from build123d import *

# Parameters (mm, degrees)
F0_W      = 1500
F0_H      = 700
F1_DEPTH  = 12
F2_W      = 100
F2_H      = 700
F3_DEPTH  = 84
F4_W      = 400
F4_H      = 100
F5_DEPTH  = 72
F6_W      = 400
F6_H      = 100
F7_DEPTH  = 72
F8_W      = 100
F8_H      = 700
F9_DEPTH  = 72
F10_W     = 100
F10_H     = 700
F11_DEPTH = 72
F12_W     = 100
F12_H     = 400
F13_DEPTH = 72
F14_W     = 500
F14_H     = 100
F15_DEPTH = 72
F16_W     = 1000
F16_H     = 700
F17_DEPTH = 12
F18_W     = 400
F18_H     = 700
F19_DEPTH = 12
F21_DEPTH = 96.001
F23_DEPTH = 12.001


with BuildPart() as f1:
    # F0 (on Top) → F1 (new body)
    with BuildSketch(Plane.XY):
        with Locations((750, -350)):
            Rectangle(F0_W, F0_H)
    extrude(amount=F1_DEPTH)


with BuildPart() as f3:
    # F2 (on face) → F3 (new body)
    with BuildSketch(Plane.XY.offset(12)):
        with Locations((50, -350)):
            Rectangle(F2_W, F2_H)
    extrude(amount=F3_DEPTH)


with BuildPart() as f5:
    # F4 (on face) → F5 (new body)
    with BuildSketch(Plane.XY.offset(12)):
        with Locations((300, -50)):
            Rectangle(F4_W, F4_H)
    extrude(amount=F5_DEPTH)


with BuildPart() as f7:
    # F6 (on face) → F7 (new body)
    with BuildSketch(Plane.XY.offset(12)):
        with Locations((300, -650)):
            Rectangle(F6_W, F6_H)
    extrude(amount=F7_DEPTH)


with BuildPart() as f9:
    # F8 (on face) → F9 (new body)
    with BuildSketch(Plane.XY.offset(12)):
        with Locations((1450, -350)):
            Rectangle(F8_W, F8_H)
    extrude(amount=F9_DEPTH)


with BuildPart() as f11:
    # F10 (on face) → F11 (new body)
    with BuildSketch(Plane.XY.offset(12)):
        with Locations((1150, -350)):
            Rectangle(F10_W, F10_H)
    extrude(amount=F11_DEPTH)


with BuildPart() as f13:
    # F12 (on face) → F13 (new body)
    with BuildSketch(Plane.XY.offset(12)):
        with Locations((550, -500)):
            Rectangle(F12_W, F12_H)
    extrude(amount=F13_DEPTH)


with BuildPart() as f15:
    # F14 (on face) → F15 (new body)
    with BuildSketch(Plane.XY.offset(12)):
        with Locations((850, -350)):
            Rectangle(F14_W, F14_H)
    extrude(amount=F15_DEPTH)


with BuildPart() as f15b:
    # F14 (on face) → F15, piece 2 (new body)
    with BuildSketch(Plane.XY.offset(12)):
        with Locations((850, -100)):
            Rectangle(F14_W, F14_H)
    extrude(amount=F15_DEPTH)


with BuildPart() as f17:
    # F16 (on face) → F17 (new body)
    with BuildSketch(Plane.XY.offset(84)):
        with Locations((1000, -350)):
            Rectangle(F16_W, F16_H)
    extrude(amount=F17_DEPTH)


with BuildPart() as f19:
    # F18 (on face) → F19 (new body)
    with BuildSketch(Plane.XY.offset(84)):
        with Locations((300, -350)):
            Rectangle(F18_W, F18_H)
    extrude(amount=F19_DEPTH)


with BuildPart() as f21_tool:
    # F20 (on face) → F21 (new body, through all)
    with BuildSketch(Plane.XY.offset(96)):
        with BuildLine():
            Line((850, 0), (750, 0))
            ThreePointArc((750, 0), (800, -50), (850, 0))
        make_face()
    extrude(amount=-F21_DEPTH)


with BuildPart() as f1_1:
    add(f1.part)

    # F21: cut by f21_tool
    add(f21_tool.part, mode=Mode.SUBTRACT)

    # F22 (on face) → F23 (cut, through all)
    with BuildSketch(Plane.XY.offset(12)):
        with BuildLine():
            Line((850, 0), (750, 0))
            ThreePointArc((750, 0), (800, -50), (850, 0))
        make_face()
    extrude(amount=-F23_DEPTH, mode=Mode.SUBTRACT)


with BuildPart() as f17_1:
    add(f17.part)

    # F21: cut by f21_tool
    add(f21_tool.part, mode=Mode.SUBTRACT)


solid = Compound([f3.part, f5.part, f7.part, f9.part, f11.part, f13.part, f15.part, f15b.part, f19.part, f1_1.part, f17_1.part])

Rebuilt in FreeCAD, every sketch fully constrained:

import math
import FreeCAD as App
import Part
import Sketcher

V = App.Vector


def add_polygon(sketch, points):
    """Adds a closed chain of lines whose ends are joined by coincident constraints."""
    first, n = sketch.GeometryCount, len(points)
    for a, b in zip(points, points[1:] + points[:1]):
        sketch.addGeometry(Part.LineSegment(App.Vector(*a, 0), App.Vector(*b, 0)), False)
    for i in range(n):
        sketch.addConstraint(Sketcher.Constraint("Coincident", first + i, 2, first + (i + 1) % n, 1))

doc = App.newDocument("Part")
params = doc.addObject("Spreadsheet::Sheet", "Params")
for row, (alias, value) in enumerate([
    ("sketch1_width", "1500 mm"),
    ("sketch1_height", "700 mm"),
    ("pad1_length", "12 mm"),
    ("sketch2_width", "100 mm"),
    ("sketch2_height", "700 mm"),
    ("pad2_length", "84 mm"),
    ("sketch3_width", "400 mm"),
    ("sketch3_height", "100 mm"),
    ("pad3_length", "72 mm"),
    ("sketch4_width", "400 mm"),
    ("sketch4_height", "100 mm"),
    ("pad4_length", "72 mm"),
    ("sketch5_width", "100 mm"),
    ("sketch5_height", "700 mm"),
    ("pad5_length", "72 mm"),
    ("sketch6_width", "100 mm"),
    ("sketch6_height", "700 mm"),
    ("pad6_length", "72 mm"),
    ("sketch7_width", "100 mm"),
    ("sketch7_height", "400 mm"),
    ("pad7_length", "72 mm"),
    ("sketch8_width", "500 mm"),
    ("sketch8_height", "100 mm"),
    ("pad8_length", "72 mm"),
    ("sketch9_width", "500 mm"),
    ("sketch9_height", "100 mm"),
    ("pad9_length", "72 mm"),
    ("sketch10_width", "1000 mm"),
    ("sketch10_height", "700 mm"),
    ("pad10_length", "12 mm"),
    ("sketch11_width", "400 mm"),
    ("sketch11_height", "700 mm"),
    ("pad11_length", "12 mm"),
    ("sketch12_radius", "50 mm"),
    ("pad12_length", "96.001 mm"),
    ("sketch13_radius", "50 mm"),
], start=1):
    params.set(f"A{row}", alias)
    params.set(f"B{row}", "=" + value)
    params.setAlias(f"B{row}", alias)

body = doc.addObject("PartDesign::Body", "Body")

sketch1 = body.newObject("Sketcher::SketchObject", "Sketch")
sketch1.AttachmentSupport = (doc.getObject("XY_Plane"), [""])
sketch1.MapMode = "FlatFace"
add_polygon(sketch1, [(0, 0), (0, -700), (1500, -700), (1500, 0)])
sketch1.addConstraint([
    Sketcher.Constraint("Vertical", 0),
    Sketcher.Constraint("Horizontal", 1),
    Sketcher.Constraint("Vertical", 2),
    Sketcher.Constraint("Horizontal", 3),
    Sketcher.Constraint("Coincident", 3, 2, -1, 1),
    Sketcher.Constraint("DistanceX", 1, 1, 1, 2, 1500.0),
    Sketcher.Constraint("DistanceY", 0, 2, 0, 1, 700.0),
])
sketch1.setExpression("Constraints[9]", "Params.sketch1_width")
sketch1.setExpression("Constraints[10]", "Params.sketch1_height")
pad1 = body.newObject("PartDesign::Pad", "Pad")
pad1.Profile = sketch1
pad1.setExpression("Length", "Params.pad1_length")
body2 = doc.addObject("PartDesign::Body", "Body001")

sketch2 = body2.newObject("Sketcher::SketchObject", "Sketch001")
sketch2.AttachmentSupport = (doc.getObject("XY_Plane001"), [""])
sketch2.MapMode = "FlatFace"
sketch2.AttachmentOffset = App.Placement(V(0, 0, 12), App.Rotation())
add_polygon(sketch2, [(0, 0), (0, -700), (100, -700), (100, 0)])
sketch2.addConstraint([
    Sketcher.Constraint("Vertical", 0),
    Sketcher.Constraint("Horizontal", 1),
    Sketcher.Constraint("Vertical", 2),
    Sketcher.Constraint("Horizontal", 3),
    Sketcher.Constraint("Coincident", 3, 2, -1, 1),
    Sketcher.Constraint("DistanceX", 1, 1, 1, 2, 100.0),
    Sketcher.Constraint("DistanceY", 0, 2, 0, 1, 700.0),
])
sketch2.setExpression("Constraints[9]", "Params.sketch2_width")
sketch2.setExpression("Constraints[10]", "Params.sketch2_height")
pad2 = body2.newObject("PartDesign::Pad", "Pad001")
pad2.Profile = sketch2
pad2.setExpression("Length", "Params.pad2_length")
body3 = doc.addObject("PartDesign::Body", "Body002")

sketch3 = body3.newObject("Sketcher::SketchObject", "Sketch002")
sketch3.AttachmentSupport = (doc.getObject("XY_Plane002"), [""])
sketch3.MapMode = "FlatFace"
sketch3.AttachmentOffset = App.Placement(V(0, 0, 12), App.Rotation())
add_polygon(sketch3, [(100, 0), (100, -100), (500, -100), (500, 0)])
sketch3.addConstraint([
    Sketcher.Constraint("Vertical", 0),
    Sketcher.Constraint("Horizontal", 1),
    Sketcher.Constraint("Vertical", 2),
    Sketcher.Constraint("Horizontal", 3),
    Sketcher.Constraint("PointOnObject", 2, 2, -1),
    Sketcher.Constraint("DistanceX", 1, 1, 1, 2, 400.0),
    Sketcher.Constraint("DistanceY", 0, 2, 0, 1, 100.0),
    Sketcher.Constraint("DistanceX", -1, 1, 0, 2, 100.0),
])
sketch3.setExpression("Constraints[9]", "Params.sketch3_width")
sketch3.setExpression("Constraints[10]", "Params.sketch3_height")
pad3 = body3.newObject("PartDesign::Pad", "Pad002")
pad3.Profile = sketch3
pad3.setExpression("Length", "Params.pad3_length")
body4 = doc.addObject("PartDesign::Body", "Body003")

sketch4 = body4.newObject("Sketcher::SketchObject", "Sketch003")
sketch4.AttachmentSupport = (doc.getObject("XY_Plane003"), [""])
sketch4.MapMode = "FlatFace"
sketch4.AttachmentOffset = App.Placement(V(0, 0, 12), App.Rotation())
add_polygon(sketch4, [(100, -600), (100, -700), (500, -700), (500, -600)])
sketch4.addConstraint([
    Sketcher.Constraint("Vertical", 0),
    Sketcher.Constraint("Horizontal", 1),
    Sketcher.Constraint("Vertical", 2),
    Sketcher.Constraint("Horizontal", 3),
    Sketcher.Constraint("DistanceX", 1, 1, 1, 2, 400.0),
    Sketcher.Constraint("DistanceY", 0, 2, 0, 1, 100.0),
    Sketcher.Constraint("DistanceX", -1, 1, 0, 2, 100.0),
    Sketcher.Constraint("DistanceY", 0, 2, -1, 1, 700.0),
])
sketch4.setExpression("Constraints[8]", "Params.sketch4_width")
sketch4.setExpression("Constraints[9]", "Params.sketch4_height")
pad4 = body4.newObject("PartDesign::Pad", "Pad003")
pad4.Profile = sketch4
pad4.setExpression("Length", "Params.pad4_length")
body5 = doc.addObject("PartDesign::Body", "Body004")

sketch5 = body5.newObject("Sketcher::SketchObject", "Sketch004")
sketch5.AttachmentSupport = (doc.getObject("XY_Plane004"), [""])
sketch5.MapMode = "FlatFace"
sketch5.AttachmentOffset = App.Placement(V(0, 0, 12), App.Rotation())
add_polygon(sketch5, [(1400, 0), (1400, -700), (1500, -700), (1500, 0)])
sketch5.addConstraint([
    Sketcher.Constraint("Vertical", 0),
    Sketcher.Constraint("Horizontal", 1),
    Sketcher.Constraint("Vertical", 2),
    Sketcher.Constraint("Horizontal", 3),
    Sketcher.Constraint("PointOnObject", 2, 2, -1),
    Sketcher.Constraint("DistanceX", 1, 1, 1, 2, 100.0),
    Sketcher.Constraint("DistanceY", 0, 2, 0, 1, 700.0),
    Sketcher.Constraint("DistanceX", -1, 1, 0, 2, 1400.0),
])
sketch5.setExpression("Constraints[9]", "Params.sketch5_width")
sketch5.setExpression("Constraints[10]", "Params.sketch5_height")
pad5 = body5.newObject("PartDesign::Pad", "Pad004")
pad5.Profile = sketch5
pad5.setExpression("Length", "Params.pad5_length")
body6 = doc.addObject("PartDesign::Body", "Body005")

sketch6 = body6.newObject("Sketcher::SketchObject", "Sketch005")
sketch6.AttachmentSupport = (doc.getObject("XY_Plane005"), [""])
sketch6.MapMode = "FlatFace"
sketch6.AttachmentOffset = App.Placement(V(0, 0, 12), App.Rotation())
add_polygon(sketch6, [(1100, 0), (1100, -700), (1200, -700), (1200, 0)])
sketch6.addConstraint([
    Sketcher.Constraint("Vertical", 0),
    Sketcher.Constraint("Horizontal", 1),
    Sketcher.Constraint("Vertical", 2),
    Sketcher.Constraint("Horizontal", 3),
    Sketcher.Constraint("PointOnObject", 2, 2, -1),
    Sketcher.Constraint("DistanceX", 1, 1, 1, 2, 100.0),
    Sketcher.Constraint("DistanceY", 0, 2, 0, 1, 700.0),
    Sketcher.Constraint("DistanceX", -1, 1, 0, 2, 1100.0),
])
sketch6.setExpression("Constraints[9]", "Params.sketch6_width")
sketch6.setExpression("Constraints[10]", "Params.sketch6_height")
pad6 = body6.newObject("PartDesign::Pad", "Pad005")
pad6.Profile = sketch6
pad6.setExpression("Length", "Params.pad6_length")
body7 = doc.addObject("PartDesign::Body", "Body006")

sketch7 = body7.newObject("Sketcher::SketchObject", "Sketch006")
sketch7.AttachmentSupport = (doc.getObject("XY_Plane006"), [""])
sketch7.MapMode = "FlatFace"
sketch7.AttachmentOffset = App.Placement(V(0, 0, 12), App.Rotation())
add_polygon(sketch7, [(500, -300), (500, -700), (600, -700), (600, -300)])
sketch7.addConstraint([
    Sketcher.Constraint("Vertical", 0),
    Sketcher.Constraint("Horizontal", 1),
    Sketcher.Constraint("Vertical", 2),
    Sketcher.Constraint("Horizontal", 3),
    Sketcher.Constraint("DistanceX", 1, 1, 1, 2, 100.0),
    Sketcher.Constraint("DistanceY", 0, 2, 0, 1, 400.0),
    Sketcher.Constraint("DistanceX", -1, 1, 0, 2, 500.0),
    Sketcher.Constraint("DistanceY", 0, 2, -1, 1, 700.0),
])
sketch7.setExpression("Constraints[8]", "Params.sketch7_width")
sketch7.setExpression("Constraints[9]", "Params.sketch7_height")
pad7 = body7.newObject("PartDesign::Pad", "Pad006")
pad7.Profile = sketch7
pad7.setExpression("Length", "Params.pad7_length")
body8 = doc.addObject("PartDesign::Body", "Body007")

sketch8 = body8.newObject("Sketcher::SketchObject", "Sketch007")
sketch8.AttachmentSupport = (doc.getObject("XY_Plane007"), [""])
sketch8.MapMode = "FlatFace"
sketch8.AttachmentOffset = App.Placement(V(0, 0, 12), App.Rotation())
add_polygon(sketch8, [(600, -300), (600, -400), (1100, -400), (1100, -300)])
sketch8.addConstraint([
    Sketcher.Constraint("Vertical", 0),
    Sketcher.Constraint("Horizontal", 1),
    Sketcher.Constraint("Vertical", 2),
    Sketcher.Constraint("Horizontal", 3),
    Sketcher.Constraint("DistanceX", 1, 1, 1, 2, 500.0),
    Sketcher.Constraint("DistanceY", 0, 2, 0, 1, 100.0),
    Sketcher.Constraint("DistanceX", -1, 1, 0, 2, 600.0),
    Sketcher.Constraint("DistanceY", 0, 2, -1, 1, 400.0),
])
sketch8.setExpression("Constraints[8]", "Params.sketch8_width")
sketch8.setExpression("Constraints[9]", "Params.sketch8_height")
pad8 = body8.newObject("PartDesign::Pad", "Pad007")
pad8.Profile = sketch8
pad8.setExpression("Length", "Params.pad8_length")
body9 = doc.addObject("PartDesign::Body", "Body008")

sketch9 = body9.newObject("Sketcher::SketchObject", "Sketch008")
sketch9.AttachmentSupport = (doc.getObject("XY_Plane008"), [""])
sketch9.MapMode = "FlatFace"
sketch9.AttachmentOffset = App.Placement(V(0, 0, 12), App.Rotation())
add_polygon(sketch9, [(600, -50), (600, -150), (1100, -150), (1100, -50)])
sketch9.addConstraint([
    Sketcher.Constraint("Vertical", 0),
    Sketcher.Constraint("Horizontal", 1),
    Sketcher.Constraint("Vertical", 2),
    Sketcher.Constraint("Horizontal", 3),
    Sketcher.Constraint("DistanceX", 1, 1, 1, 2, 500.0),
    Sketcher.Constraint("DistanceY", 0, 2, 0, 1, 100.0),
    Sketcher.Constraint("DistanceX", -1, 1, 0, 2, 600.0),
    Sketcher.Constraint("DistanceY", 0, 2, -1, 1, 150.0),
])
sketch9.setExpression("Constraints[8]", "Params.sketch9_width")
sketch9.setExpression("Constraints[9]", "Params.sketch9_height")
pad9 = body9.newObject("PartDesign::Pad", "Pad008")
pad9.Profile = sketch9
pad9.setExpression("Length", "Params.pad9_length")
body10 = doc.addObject("PartDesign::Body", "Body009")

sketch10 = body10.newObject("Sketcher::SketchObject", "Sketch009")
sketch10.AttachmentSupport = (doc.getObject("XY_Plane009"), [""])
sketch10.MapMode = "FlatFace"
sketch10.AttachmentOffset = App.Placement(V(0, 0, 84), App.Rotation())
add_polygon(sketch10, [(500, 0), (500, -700), (1500, -700), (1500, 0)])
sketch10.addConstraint([
    Sketcher.Constraint("Vertical", 0),
    Sketcher.Constraint("Horizontal", 1),
    Sketcher.Constraint("Vertical", 2),
    Sketcher.Constraint("Horizontal", 3),
    Sketcher.Constraint("PointOnObject", 2, 2, -1),
    Sketcher.Constraint("DistanceX", 1, 1, 1, 2, 1000.0),
    Sketcher.Constraint("DistanceY", 0, 2, 0, 1, 700.0),
    Sketcher.Constraint("DistanceX", -1, 1, 0, 2, 500.0),
])
sketch10.setExpression("Constraints[9]", "Params.sketch10_width")
sketch10.setExpression("Constraints[10]", "Params.sketch10_height")
pad10 = body10.newObject("PartDesign::Pad", "Pad009")
pad10.Profile = sketch10
pad10.setExpression("Length", "Params.pad10_length")
body11 = doc.addObject("PartDesign::Body", "Body010")

sketch11 = body11.newObject("Sketcher::SketchObject", "Sketch010")
sketch11.AttachmentSupport = (doc.getObject("XY_Plane010"), [""])
sketch11.MapMode = "FlatFace"
sketch11.AttachmentOffset = App.Placement(V(0, 0, 84), App.Rotation())
add_polygon(sketch11, [(100, 0), (100, -700), (500, -700), (500, 0)])
sketch11.addConstraint([
    Sketcher.Constraint("Vertical", 0),
    Sketcher.Constraint("Horizontal", 1),
    Sketcher.Constraint("Vertical", 2),
    Sketcher.Constraint("Horizontal", 3),
    Sketcher.Constraint("PointOnObject", 2, 2, -1),
    Sketcher.Constraint("DistanceX", 1, 1, 1, 2, 400.0),
    Sketcher.Constraint("DistanceY", 0, 2, 0, 1, 700.0),
    Sketcher.Constraint("DistanceX", -1, 1, 0, 2, 100.0),
])
sketch11.setExpression("Constraints[9]", "Params.sketch11_width")
sketch11.setExpression("Constraints[10]", "Params.sketch11_height")
pad11 = body11.newObject("PartDesign::Pad", "Pad010")
pad11.Profile = sketch11
pad11.setExpression("Length", "Params.pad11_length")
body12 = doc.addObject("PartDesign::Body", "Body011")

sketch12 = body12.newObject("Sketcher::SketchObject", "Sketch011")
sketch12.AttachmentSupport = (doc.getObject("XY_Plane011"), [""])
sketch12.MapMode = "FlatFace"
sketch12.AttachmentOffset = App.Placement(V(0, 0, 96), App.Rotation())
sketch12.addGeometry([
    Part.LineSegment(V(850, 0, 0), V(750, 0, 0)),
    Part.ArcOfCircle(Part.Circle(V(800, 0, 0), V(0, 0, 1), 50), math.radians(180), math.radians(360)),
], False)
sketch12.addConstraint([
    Sketcher.Constraint("Coincident", 0, 1, 1, 2),
    Sketcher.Constraint("Coincident", 1, 1, 0, 2),
    Sketcher.Constraint("Horizontal", 0),
    Sketcher.Constraint("PointOnObject", 1, 3, -1),
    Sketcher.Constraint("PointOnObject", 0, 1, -1),
    Sketcher.Constraint("Radius", 1, 50.0),
    Sketcher.Constraint("DistanceX", -1, 1, 1, 3, 800.0),
])
sketch12.setExpression("Constraints[5]", "Params.sketch12_radius")
pad12 = body12.newObject("PartDesign::Pad", "Pad011")
pad12.Profile = sketch12
pad12.setExpression("Length", "Params.pad12_length")
pad12.Reversed = True
doc.recompute()

body13 = doc.addObject("PartDesign::Body", "Body012")
body13.BaseFeature = body12
boolean = body.newObject("PartDesign::Boolean", "Boolean")
boolean.Type = "Cut"
boolean.addObjects([body13])
doc.recompute()

sketch13 = body.newObject("Sketcher::SketchObject", "Sketch012")
sketch13.AttachmentSupport = (doc.getObject("XY_Plane"), [""])
sketch13.MapMode = "FlatFace"
sketch13.AttachmentOffset = App.Placement(V(0, 0, 12), App.Rotation())
sketch13.addGeometry([
    Part.LineSegment(V(850, 0, 0), V(750, 0, 0)),
    Part.ArcOfCircle(Part.Circle(V(800, 0, 0), V(0, 0, 1), 50), math.radians(180), math.radians(360)),
], False)
sketch13.addConstraint([
    Sketcher.Constraint("Coincident", 0, 1, 1, 2),
    Sketcher.Constraint("Coincident", 1, 1, 0, 2),
    Sketcher.Constraint("Horizontal", 0),
    Sketcher.Constraint("PointOnObject", 1, 3, -1),
    Sketcher.Constraint("PointOnObject", 0, 1, -1),
    Sketcher.Constraint("Radius", 1, 50.0),
    Sketcher.Constraint("DistanceX", -1, 1, 1, 3, 800.0),
])
sketch13.setExpression("Constraints[5]", "Params.sketch13_radius")
pocket1 = body.newObject("PartDesign::Pocket", "Pocket")
pocket1.Profile = sketch13
pocket1.Type = "ThroughAll"
doc.recompute()

boolean2 = body10.newObject("PartDesign::Boolean", "Boolean001")
boolean2.Type = "Cut"
boolean2.addObjects([body12])

doc.recompute()
